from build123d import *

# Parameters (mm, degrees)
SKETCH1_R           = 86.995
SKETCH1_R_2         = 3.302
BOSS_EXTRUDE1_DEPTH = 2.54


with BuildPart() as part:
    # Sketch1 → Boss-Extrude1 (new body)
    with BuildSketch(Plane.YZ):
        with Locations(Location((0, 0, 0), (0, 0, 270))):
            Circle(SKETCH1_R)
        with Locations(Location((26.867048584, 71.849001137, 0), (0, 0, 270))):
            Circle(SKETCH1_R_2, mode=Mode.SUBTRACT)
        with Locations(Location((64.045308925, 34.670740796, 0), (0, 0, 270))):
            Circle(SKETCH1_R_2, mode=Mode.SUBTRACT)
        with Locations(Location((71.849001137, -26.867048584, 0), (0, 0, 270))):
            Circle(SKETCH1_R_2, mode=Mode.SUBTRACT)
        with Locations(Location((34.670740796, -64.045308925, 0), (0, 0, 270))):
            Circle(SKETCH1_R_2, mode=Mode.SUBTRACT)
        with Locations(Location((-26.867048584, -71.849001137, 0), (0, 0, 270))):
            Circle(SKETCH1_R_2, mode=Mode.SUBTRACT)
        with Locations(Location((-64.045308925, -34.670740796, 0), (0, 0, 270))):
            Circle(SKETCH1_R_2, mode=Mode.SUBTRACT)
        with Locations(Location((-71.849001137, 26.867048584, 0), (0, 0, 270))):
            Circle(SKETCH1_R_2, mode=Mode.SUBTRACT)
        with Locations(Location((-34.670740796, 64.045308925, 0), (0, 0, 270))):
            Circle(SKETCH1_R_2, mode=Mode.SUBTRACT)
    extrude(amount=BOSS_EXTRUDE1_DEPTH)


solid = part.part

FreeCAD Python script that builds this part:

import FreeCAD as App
import Part
import Sketcher
Q = App.Units.Quantity

doc = App.newDocument("Part")
body = doc.addObject("PartDesign::Body", "Body")

sketch1 = body.newObject("Sketcher::SketchObject", "Sketch")
sketch1.AttachmentSupport = (doc.getObject("YZ_Plane"), [""])
sketch1.MapMode = "FlatFace"
sketch1.addGeometry(Part.Circle(App.Vector(0, 0, 0), App.Vector(0, 0, 1), 86.995), False)
sketch1.addGeometry(Part.Circle(App.Vector(-71.849001, 26.867049, 0), App.Vector(0, 0, 1), 3.302), False)
sketch1.addGeometry(Part.Circle(App.Vector(-34.670741, 64.045309, 0), App.Vector(0, 0, 1), 3.302), False)
sketch1.addGeometry(Part.Circle(App.Vector(-64.045309, -34.670741, 0), App.Vector(0, 0, 1), 3.302), False)
sketch1.addGeometry(Part.Circle(App.Vector(-26.867049, -71.849001, 0), App.Vector(0, 0, 1), 3.302), False)
sketch1.addGeometry(Part.Circle(App.Vector(26.867049, 71.849001, 0), App.Vector(0, 0, 1), 3.302), False)
sketch1.addGeometry(Part.Circle(App.Vector(64.045309, 34.670741, 0), App.Vector(0, 0, 1), 3.302), False)
sketch1.addGeometry(Part.Circle(App.Vector(34.670741, -64.045309, 0), App.Vector(0, 0, 1), 3.302), False)
sketch1.addGeometry(Part.Circle(App.Vector(71.849001, -26.867049, 0), App.Vector(0, 0, 1), 3.302), False)
sketch1.addConstraint(Sketcher.Constraint("Coincident", 0, 3, -1, 1))
sketch1.addConstraint(Sketcher.Constraint("Equal", 1, 2))
sketch1.addConstraint(Sketcher.Constraint("Equal", 2, 3))
sketch1.addConstraint(Sketcher.Constraint("Equal", 3, 4))
sketch1.addConstraint(Sketcher.Constraint("Equal", 4, 5))
sketch1.addConstraint(Sketcher.Constraint("Equal", 5, 6))
sketch1.addConstraint(Sketcher.Constraint("Equal", 6, 7))
sketch1.addConstraint(Sketcher.Constraint("Equal", 7, 8))
sketch1.addConstraint(Sketcher.Constraint("Symmetric", 4, 3, 5, 3, -1, 1))
sketch1.addConstraint(Sketcher.Constraint("Symmetric", 3, 3, 6, 3, -1, 1))
sketch1.addConstraint(Sketcher.Constraint("Symmetric", 2, 3, 7, 3, -1, 1))
sketch1.addConstraint(Sketcher.Constraint("Symmetric", 1, 3, 8, 3, -1, 1))
sketch1.addConstraint(Sketcher.Constraint("Diameter", 0, Q("6.85 in")))
sketch1.addConstraint(Sketcher.Constraint("Diameter", 1, Q("0.26 in")))
sketch1.addConstraint(Sketcher.Constraint("DistanceX", 1, 3, -1, 1, Q("71.849001 mm")))
sketch1.addConstraint(Sketcher.Constraint("DistanceY", 4, 3, -1, 1, Q("71.849001 mm")))
sketch1.addConstraint(Sketcher.Constraint("DistanceY", -1, 1, 1, 3, Q("26.867049 mm")))
sketch1.addConstraint(Sketcher.Constraint("DistanceX", 2, 3, -1, 1, Q("34.670741 mm")))
sketch1.addConstraint(Sketcher.Constraint("DistanceY", -1, 1, 2, 3, Q("64.045309 mm")))
sketch1.addConstraint(Sketcher.Constraint("DistanceX", 3, 3, -1, 1, Q("64.045309 mm")))
sketch1.addConstraint(Sketcher.Constraint("DistanceY", 3, 3, -1, 1, Q("34.670741 mm")))
sketch1.addConstraint(Sketcher.Constraint("DistanceX", 4, 3, -1, 1, Q("26.867049 mm")))
pad1 = body.newObject("PartDesign::Pad", "Pad")
pad1.Profile = sketch1
pad1.Length = Q("0.1 in")

doc.recompute()
